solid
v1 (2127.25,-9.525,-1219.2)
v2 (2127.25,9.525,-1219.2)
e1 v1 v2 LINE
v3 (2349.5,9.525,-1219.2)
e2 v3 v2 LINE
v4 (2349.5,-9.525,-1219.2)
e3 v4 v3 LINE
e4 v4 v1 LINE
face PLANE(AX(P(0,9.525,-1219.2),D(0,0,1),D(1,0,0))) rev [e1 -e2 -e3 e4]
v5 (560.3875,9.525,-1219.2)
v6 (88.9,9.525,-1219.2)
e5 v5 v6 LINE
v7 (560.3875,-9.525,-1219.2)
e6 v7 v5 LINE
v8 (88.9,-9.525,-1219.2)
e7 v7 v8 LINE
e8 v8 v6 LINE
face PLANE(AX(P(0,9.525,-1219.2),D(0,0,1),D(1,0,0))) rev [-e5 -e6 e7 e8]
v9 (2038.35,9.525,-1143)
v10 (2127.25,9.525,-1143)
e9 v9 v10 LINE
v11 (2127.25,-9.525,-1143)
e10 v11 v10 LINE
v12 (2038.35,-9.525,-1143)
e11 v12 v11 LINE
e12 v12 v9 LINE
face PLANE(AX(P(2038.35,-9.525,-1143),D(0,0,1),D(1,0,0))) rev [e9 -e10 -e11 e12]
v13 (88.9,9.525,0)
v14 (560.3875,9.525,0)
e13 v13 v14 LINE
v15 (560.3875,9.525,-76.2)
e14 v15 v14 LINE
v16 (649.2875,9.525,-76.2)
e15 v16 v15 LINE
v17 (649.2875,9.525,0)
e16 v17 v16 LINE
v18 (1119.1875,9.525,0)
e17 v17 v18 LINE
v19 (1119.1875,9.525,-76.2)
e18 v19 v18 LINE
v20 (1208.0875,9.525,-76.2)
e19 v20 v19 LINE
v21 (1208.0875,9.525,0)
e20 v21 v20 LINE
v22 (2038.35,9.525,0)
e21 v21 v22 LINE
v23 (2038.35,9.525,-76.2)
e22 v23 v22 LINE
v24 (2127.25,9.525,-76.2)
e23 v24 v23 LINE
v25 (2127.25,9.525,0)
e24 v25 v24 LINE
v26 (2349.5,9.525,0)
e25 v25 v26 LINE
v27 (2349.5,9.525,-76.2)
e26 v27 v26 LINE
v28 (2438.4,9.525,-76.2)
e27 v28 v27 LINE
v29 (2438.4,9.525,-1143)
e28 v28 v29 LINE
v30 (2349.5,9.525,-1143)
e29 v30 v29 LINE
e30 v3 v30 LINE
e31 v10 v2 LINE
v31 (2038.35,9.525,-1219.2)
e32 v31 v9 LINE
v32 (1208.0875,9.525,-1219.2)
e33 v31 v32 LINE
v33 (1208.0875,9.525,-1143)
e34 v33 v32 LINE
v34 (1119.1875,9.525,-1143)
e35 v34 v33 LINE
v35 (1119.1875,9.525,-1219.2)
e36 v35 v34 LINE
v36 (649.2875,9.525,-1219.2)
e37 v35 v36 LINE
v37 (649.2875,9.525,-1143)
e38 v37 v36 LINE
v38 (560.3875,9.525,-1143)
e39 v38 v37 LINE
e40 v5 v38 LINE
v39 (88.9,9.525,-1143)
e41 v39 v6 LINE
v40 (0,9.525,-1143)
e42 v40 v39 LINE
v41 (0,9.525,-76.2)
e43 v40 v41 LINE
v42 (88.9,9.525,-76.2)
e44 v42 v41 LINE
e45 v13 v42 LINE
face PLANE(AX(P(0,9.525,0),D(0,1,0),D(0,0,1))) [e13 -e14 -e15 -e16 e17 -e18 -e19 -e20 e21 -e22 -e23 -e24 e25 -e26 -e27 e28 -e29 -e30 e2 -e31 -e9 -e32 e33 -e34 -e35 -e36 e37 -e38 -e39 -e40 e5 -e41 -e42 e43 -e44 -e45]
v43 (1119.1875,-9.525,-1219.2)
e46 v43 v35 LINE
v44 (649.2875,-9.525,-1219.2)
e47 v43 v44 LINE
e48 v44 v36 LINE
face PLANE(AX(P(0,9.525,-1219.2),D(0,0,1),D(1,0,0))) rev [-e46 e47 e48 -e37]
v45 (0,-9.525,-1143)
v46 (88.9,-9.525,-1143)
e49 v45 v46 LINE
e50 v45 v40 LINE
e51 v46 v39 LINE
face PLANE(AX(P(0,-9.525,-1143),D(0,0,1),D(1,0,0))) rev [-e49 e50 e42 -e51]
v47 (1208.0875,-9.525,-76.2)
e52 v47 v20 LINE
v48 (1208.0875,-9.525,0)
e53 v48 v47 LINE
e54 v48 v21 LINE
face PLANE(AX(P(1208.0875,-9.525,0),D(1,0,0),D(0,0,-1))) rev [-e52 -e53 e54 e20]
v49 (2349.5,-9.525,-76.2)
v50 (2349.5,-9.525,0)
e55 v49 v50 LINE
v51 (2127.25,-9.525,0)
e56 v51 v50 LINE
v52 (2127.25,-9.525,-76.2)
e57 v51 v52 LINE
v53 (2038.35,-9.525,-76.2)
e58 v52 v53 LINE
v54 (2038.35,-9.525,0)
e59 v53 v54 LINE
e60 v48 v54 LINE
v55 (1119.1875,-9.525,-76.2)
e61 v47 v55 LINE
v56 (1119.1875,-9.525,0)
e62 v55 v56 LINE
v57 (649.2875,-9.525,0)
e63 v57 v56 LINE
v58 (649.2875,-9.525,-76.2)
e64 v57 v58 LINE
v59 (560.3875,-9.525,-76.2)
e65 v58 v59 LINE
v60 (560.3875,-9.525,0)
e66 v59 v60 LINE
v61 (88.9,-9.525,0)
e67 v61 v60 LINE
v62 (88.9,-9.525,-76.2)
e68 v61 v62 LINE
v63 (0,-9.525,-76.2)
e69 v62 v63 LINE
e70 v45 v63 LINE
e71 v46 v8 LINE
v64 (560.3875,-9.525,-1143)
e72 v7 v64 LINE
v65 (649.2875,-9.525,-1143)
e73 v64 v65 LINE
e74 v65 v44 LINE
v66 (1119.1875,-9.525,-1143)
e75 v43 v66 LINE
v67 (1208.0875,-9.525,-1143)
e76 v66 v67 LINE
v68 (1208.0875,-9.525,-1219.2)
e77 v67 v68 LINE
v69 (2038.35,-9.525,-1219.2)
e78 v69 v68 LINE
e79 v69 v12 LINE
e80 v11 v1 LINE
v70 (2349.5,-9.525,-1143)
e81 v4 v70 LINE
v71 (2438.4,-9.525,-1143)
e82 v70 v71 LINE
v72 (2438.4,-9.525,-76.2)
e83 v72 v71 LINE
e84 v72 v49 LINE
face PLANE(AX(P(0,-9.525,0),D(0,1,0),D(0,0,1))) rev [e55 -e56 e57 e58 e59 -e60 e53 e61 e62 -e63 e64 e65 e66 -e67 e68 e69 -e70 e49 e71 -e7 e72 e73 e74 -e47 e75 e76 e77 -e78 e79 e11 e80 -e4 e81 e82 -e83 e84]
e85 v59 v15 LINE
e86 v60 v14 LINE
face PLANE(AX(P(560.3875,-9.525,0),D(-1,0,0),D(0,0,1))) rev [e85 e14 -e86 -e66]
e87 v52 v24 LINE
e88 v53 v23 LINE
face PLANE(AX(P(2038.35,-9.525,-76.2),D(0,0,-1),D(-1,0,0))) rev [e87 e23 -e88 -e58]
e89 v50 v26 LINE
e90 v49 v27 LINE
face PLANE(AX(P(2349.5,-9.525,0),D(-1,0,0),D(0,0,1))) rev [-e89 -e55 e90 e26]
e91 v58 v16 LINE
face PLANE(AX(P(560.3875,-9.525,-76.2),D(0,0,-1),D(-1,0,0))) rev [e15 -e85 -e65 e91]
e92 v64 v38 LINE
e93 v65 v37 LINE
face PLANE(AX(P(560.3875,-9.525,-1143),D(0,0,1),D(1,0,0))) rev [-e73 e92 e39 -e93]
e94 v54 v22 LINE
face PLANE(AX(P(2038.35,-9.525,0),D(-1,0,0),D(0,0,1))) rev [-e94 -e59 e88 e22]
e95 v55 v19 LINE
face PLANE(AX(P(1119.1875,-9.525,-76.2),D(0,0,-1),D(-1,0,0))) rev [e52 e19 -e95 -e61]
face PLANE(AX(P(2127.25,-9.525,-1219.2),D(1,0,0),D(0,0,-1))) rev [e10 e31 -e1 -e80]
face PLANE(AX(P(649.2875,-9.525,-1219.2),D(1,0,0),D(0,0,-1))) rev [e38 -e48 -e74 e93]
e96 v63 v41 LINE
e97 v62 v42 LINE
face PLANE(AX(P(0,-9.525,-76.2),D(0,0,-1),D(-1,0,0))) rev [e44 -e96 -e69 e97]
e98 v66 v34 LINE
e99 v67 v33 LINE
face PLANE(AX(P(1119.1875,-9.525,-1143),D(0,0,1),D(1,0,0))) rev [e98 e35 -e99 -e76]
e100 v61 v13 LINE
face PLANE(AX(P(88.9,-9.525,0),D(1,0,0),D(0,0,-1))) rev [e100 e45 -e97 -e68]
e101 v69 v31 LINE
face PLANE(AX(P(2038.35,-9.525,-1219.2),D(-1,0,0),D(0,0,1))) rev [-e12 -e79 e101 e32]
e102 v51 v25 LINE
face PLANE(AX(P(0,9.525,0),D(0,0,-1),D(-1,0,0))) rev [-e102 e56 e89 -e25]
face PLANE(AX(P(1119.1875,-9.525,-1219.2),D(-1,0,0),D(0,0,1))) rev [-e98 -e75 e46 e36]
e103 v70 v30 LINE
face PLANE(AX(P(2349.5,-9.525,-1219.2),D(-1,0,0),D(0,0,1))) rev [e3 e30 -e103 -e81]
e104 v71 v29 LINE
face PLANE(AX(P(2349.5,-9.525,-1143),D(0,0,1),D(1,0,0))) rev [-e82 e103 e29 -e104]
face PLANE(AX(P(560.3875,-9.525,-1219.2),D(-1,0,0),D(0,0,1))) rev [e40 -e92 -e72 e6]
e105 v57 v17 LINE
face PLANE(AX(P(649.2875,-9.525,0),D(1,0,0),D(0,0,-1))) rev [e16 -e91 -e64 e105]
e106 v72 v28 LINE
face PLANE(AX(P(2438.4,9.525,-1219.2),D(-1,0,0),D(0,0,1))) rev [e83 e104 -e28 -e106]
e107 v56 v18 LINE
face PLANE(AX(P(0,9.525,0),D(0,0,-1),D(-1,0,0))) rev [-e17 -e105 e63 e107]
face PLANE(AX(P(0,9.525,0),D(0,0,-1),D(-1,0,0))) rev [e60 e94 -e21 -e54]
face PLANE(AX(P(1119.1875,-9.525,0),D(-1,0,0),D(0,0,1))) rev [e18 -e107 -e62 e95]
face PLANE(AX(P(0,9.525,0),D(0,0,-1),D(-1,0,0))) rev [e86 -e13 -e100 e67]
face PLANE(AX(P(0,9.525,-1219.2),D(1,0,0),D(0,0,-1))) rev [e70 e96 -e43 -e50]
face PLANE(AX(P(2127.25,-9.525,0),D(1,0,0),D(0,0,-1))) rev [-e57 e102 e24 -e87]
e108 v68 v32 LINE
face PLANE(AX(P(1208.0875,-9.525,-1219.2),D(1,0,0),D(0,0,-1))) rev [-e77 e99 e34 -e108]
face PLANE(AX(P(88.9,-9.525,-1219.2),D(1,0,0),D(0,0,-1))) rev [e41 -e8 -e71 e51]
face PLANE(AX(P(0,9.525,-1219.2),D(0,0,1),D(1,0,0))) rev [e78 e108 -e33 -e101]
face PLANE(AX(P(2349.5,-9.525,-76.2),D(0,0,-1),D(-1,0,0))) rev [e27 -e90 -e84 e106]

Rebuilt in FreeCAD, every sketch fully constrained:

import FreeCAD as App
import Part
import Sketcher
from FreeCAD import Vector
Q = App.Units.Quantity

doc = App.newDocument("Part")
body = doc.addObject("PartDesign::Body", "Body")

sketch1 = body.newObject("Sketcher::SketchObject", "Sketch")
sketch1.AttachmentSupport = (doc.getObject("XZ_Plane"), [""])
sketch1.MapMode = "FlatFace"
sketch1.addGeometry([
    Part.LineSegment(Vector(0, -1219, 0), Vector(0, 0, 0)),
    Part.LineSegment(Vector(0, 0, 0), Vector(2438, 0, 0)),
    Part.LineSegment(Vector(2438, 0, 0), Vector(2438, -1219, 0)),
    Part.LineSegment(Vector(2438, -1219, 0), Vector(0, -1219, 0)),
], False)
sketch1.addConstraint([
    Sketcher.Constraint("Coincident", 0, 2, 1, 1),
    Sketcher.Constraint("Coincident", 1, 2, 2, 1),
    Sketcher.Constraint("Coincident", 2, 2, 3, 1),
    Sketcher.Constraint("Coincident", 3, 2, 0, 1),
    Sketcher.Constraint("Vertical", 0),
    Sketcher.Constraint("Horizontal", 1),
    Sketcher.Constraint("Vertical", 2),
    Sketcher.Constraint("Horizontal", 3),
    Sketcher.Constraint("Coincident", 0, 2, -1, 1),
    Sketcher.Constraint("DistanceX", 1, 1, 1, 2, Q("96 in")),
    Sketcher.Constraint("DistanceY", 0, 1, 0, 2, Q("48 in")),
])
pad1 = body.newObject("PartDesign::Pad", "Pad")
pad1.Profile = sketch1
pad1.Length = Q("0.75 in")
pad1.Midplane = True

sketch2 = body.newObject("Sketcher::SketchObject", "Sketch001")
sketch2.AttachmentSupport = (doc.getObject("XZ_Plane"), [""])
sketch2.MapMode = "FlatFace"
sketch2.AttachmentOffset = App.Placement(Vector(0, 0, -0.375 * 25.4), App.Rotation())
sketch2.addGeometry([
    Part.LineSegment(Vector(0, -1219, 0), Vector(0, -1143, 0)),
    Part.LineSegment(Vector(0, -1143, 0), Vector(89, -1143, 0)),
    Part.LineSegment(Vector(89, -1143, 0), Vector(89, -1219, 0)),
    Part.LineSegment(Vector(89, -1219, 0), Vector(0, -1219, 0)),
    Part.LineSegment(Vector(560, -1219, 0), Vector(560, -1143, 0)),
    Part.LineSegment(Vector(560, -1143, 0), Vector(649, -1143, 0)),
    Part.LineSegment(Vector(649, -1143, 0), Vector(649, -1219, 0)),
    Part.LineSegment(Vector(649, -1219, 0), Vector(560, -1219, 0)),
    Part.LineSegment(Vector(1119, -1219, 0), Vector(1119, -1143, 0)),
    Part.LineSegment(Vector(1119, -1143, 0), Vector(1208, -1143, 0)),
    Part.LineSegment(Vector(1208, -1143, 0), Vector(1208, -1219, 0)),
    Part.LineSegment(Vector(1208, -1219, 0), Vector(1119, -1219, 0)),
    Part.LineSegment(Vector(2038, -1219, 0), Vector(2038, -1143, 0)),
    Part.LineSegment(Vector(2038, -1143, 0), Vector(2127, -1143, 0)),
    Part.LineSegment(Vector(2127, -1143, 0), Vector(2127, -1219, 0)),
    Part.LineSegment(Vector(2127, -1219, 0), Vector(2038, -1219, 0)),
    Part.LineSegment(Vector(2350, -1219, 0), Vector(2350, -1143, 0)),
    Part.LineSegment(Vector(2350, -1143, 0), Vector(2438, -1143, 0)),
    Part.LineSegment(Vector(2438, -1143, 0), Vector(2438, -1219, 0)),
    Part.LineSegment(Vector(2438, -1219, 0), Vector(2350, -1219, 0)),
    Part.LineSegment(Vector(1119, -76, 0), Vector(1119, 0, 0)),
    Part.LineSegment(Vector(1119, 0, 0), Vector(1208, 0, 0)),
    Part.LineSegment(Vector(1208, 0, 0), Vector(1208, -76, 0)),
    Part.LineSegment(Vector(1208, -76, 0), Vector(1119, -76, 0)),
    Part.LineSegment(Vector(560, -76, 0), Vector(560, 0, 0)),
    Part.LineSegment(Vector(560, 0, 0), Vector(649, 0, 0)),
    Part.LineSegment(Vector(649, 0, 0), Vector(649, -76, 0)),
    Part.LineSegment(Vector(649, -76, 0), Vector(560, -76, 0)),
    Part.LineSegment(Vector(2350, -76, 0), Vector(2350, 0, 0)),
    Part.LineSegment(Vector(2350, 0, 0), Vector(2438, 0, 0)),
    Part.LineSegment(Vector(2438, 0, 0), Vector(2438, -76, 0)),
    Part.LineSegment(Vector(2438, -76, 0), Vector(2350, -76, 0)),
    Part.LineSegment(Vector(2038, -76, 0), Vector(2038, 0, 0)),
    Part.LineSegment(Vector(2038, 0, 0), Vector(2127, 0, 0)),
    Part.LineSegment(Vector(2127, 0, 0), Vector(2127, -76, 0)),
    Part.LineSegment(Vector(2127, -76, 0), Vector(2038, -76, 0)),
    Part.LineSegment(Vector(0, -76, 0), Vector(0, 0, 0)),
    Part.LineSegment(Vector(0, 0, 0), Vector(89, 0, 0)),
    Part.LineSegment(Vector(89, 0, 0), Vector(89, -76, 0)),
    Part.LineSegment(Vector(89, -76, 0), Vector(0, -76, 0)),
], False)
sketch2.addConstraint([
    Sketcher.Constraint("Coincident", 0, 2, 1, 1),
    Sketcher.Constraint("Coincident", 1, 2, 2, 1),
    Sketcher.Constraint("Coincident", 2, 2, 3, 1),
    Sketcher.Constraint("Coincident", 3, 2, 0, 1),
    Sketcher.Constraint("Coincident", 4, 2, 5, 1),
    Sketcher.Constraint("Coincident", 5, 2, 6, 1),
    Sketcher.Constraint("Coincident", 6, 2, 7, 1),
    Sketcher.Constraint("Coincident", 7, 2, 4, 1),
    Sketcher.Constraint("Coincident", 8, 2, 9, 1),
    Sketcher.Constraint("Coincident", 9, 2, 10, 1),
    Sketcher.Constraint("Coincident", 10, 2, 11, 1),
    Sketcher.Constraint("Coincident", 11, 2, 8, 1),
    Sketcher.Constraint("Coincident", 12, 2, 13, 1),
    Sketcher.Constraint("Coincident", 13, 2, 14, 1),
    Sketcher.Constraint("Coincident", 14, 2, 15, 1),
    Sketcher.Constraint("Coincident", 15, 2, 12, 1),
    Sketcher.Constraint("Coincident", 16, 2, 17, 1),
    Sketcher.Constraint("Coincident", 17, 2, 18, 1),
    Sketcher.Constraint("Coincident", 18, 2, 19, 1),
    Sketcher.Constraint("Coincident", 19, 2, 16, 1),
    Sketcher.Constraint("Coincident", 20, 2, 21, 1),
    Sketcher.Constraint("Coincident", 21, 2, 22, 1),
    Sketcher.Constraint("Coincident", 22, 2, 23, 1),
    Sketcher.Constraint("Coincident", 23, 2, 20, 1),
    Sketcher.Constraint("Coincident", 24, 2, 25, 1),
    Sketcher.Constraint("Coincident", 25, 2, 26, 1),
    Sketcher.Constraint("Coincident", 26, 2, 27, 1),
    Sketcher.Constraint("Coincident", 27, 2, 24, 1),
    Sketcher.Constraint("Coincident", 28, 2, 29, 1),
    Sketcher.Constraint("Coincident", 29, 2, 30, 1),
    Sketcher.Constraint("Coincident", 30, 2, 31, 1),
    Sketcher.Constraint("Coincident", 31, 2, 28, 1),
    Sketcher.Constraint("Coincident", 32, 2, 33, 1),
    Sketcher.Constraint("Coincident", 33, 2, 34, 1),
    Sketcher.Constraint("Coincident", 34, 2, 35, 1),
    Sketcher.Constraint("Coincident", 35, 2, 32, 1),
    Sketcher.Constraint("Coincident", 36, 2, 37, 1),
    Sketcher.Constraint("Coincident", 37, 2, 38, 1),
    Sketcher.Constraint("Coincident", 38, 2, 39, 1),
    Sketcher.Constraint("Coincident", 39, 2, 36, 1),
    Sketcher.Constraint("Vertical", 0),
    Sketcher.Constraint("Horizontal", 1),
    Sketcher.Constraint("Vertical", 2),
    Sketcher.Constraint("Horizontal", 3),
    Sketcher.Constraint("Vertical", 4),
    Sketcher.Constraint("Horizontal", 5),
    Sketcher.Constraint("Vertical", 6),
    Sketcher.Constraint("Horizontal", 7),
    Sketcher.Constraint("Vertical", 8),
    Sketcher.Constraint("Horizontal", 9),
    Sketcher.Constraint("Vertical", 10),
    Sketcher.Constraint("Horizontal", 11),
    Sketcher.Constraint("Vertical", 12),
    Sketcher.Constraint("Horizontal", 13),
    Sketcher.Constraint("Vertical", 14),
    Sketcher.Constraint("Horizontal", 15),
    Sketcher.Constraint("Vertical", 16),
    Sketcher.Constraint("Horizontal", 17),
    Sketcher.Constraint("Vertical", 18),
    Sketcher.Constraint("Horizontal", 19),
    Sketcher.Constraint("Vertical", 20),
    Sketcher.Constraint("Horizontal", 21),
    Sketcher.Constraint("Vertical", 22),
    Sketcher.Constraint("Horizontal", 23),
    Sketcher.Constraint("Vertical", 24),
    Sketcher.Constraint("Horizontal", 25),
    Sketcher.Constraint("Vertical", 26),
    Sketcher.Constraint("Horizontal", 27),
    Sketcher.Constraint("Vertical", 28),
    Sketcher.Constraint("Horizontal", 29),
    Sketcher.Constraint("Vertical", 30),
    Sketcher.Constraint("Horizontal", 31),
    Sketcher.Constraint("Vertical", 32),
    Sketcher.Constraint("Horizontal", 33),
    Sketcher.Constraint("Vertical", 34),
    Sketcher.Constraint("Horizontal", 35),
    Sketcher.Constraint("Vertical", 36),
    Sketcher.Constraint("Horizontal", 37),
    Sketcher.Constraint("Vertical", 38),
    Sketcher.Constraint("Horizontal", 39),
    Sketcher.Constraint("Coincident", 36, 2, -1, 1),
    Sketcher.Constraint("PointOnObject", 0, 2, -2),
    Sketcher.Constraint("PointOnObject", 20, 2, -1),
    Sketcher.Constraint("PointOnObject", 24, 2, -1),
    Sketcher.Constraint("PointOnObject", 28, 2, -1),
    Sketcher.Constraint("PointOnObject", 32, 2, -1),
    Sketcher.Constraint("Horizontal", 1, 2, 4, 2),
    Sketcher.Constraint("Horizontal", 3, 2, 6, 2),
    Sketcher.Constraint("Horizontal", 5, 2, 8, 2),
    Sketcher.Constraint("Horizontal", 7, 2, 10, 2),
    Sketcher.Constraint("Horizontal", 9, 2, 12, 2),
    Sketcher.Constraint("Horizontal", 11, 2, 14, 2),
    Sketcher.Constraint("Horizontal", 13, 2, 16, 2),
    Sketcher.Constraint("Horizontal", 15, 2, 18, 2),
    Sketcher.Constraint("Horizontal", 23, 2, 26, 2),
    Sketcher.Constraint("Horizontal", 27, 2, 30, 2),
    Sketcher.Constraint("Horizontal", 31, 2, 34, 2),
    Sketcher.Constraint("Horizontal", 35, 2, 38, 2),
    Sketcher.Constraint("Vertical", 11, 2, 20, 2),
    Sketcher.Constraint("Vertical", 10, 2, 21, 2),
    Sketcher.Constraint("Vertical", 7, 2, 24, 2),
    Sketcher.Constraint("Vertical", 6, 2, 25, 2),
    Sketcher.Constraint("Vertical", 19, 2, 28, 2),
    Sketcher.Constraint("Vertical", 18, 2, 29, 2),
    Sketcher.Constraint("Vertical", 15, 2, 32, 2),
    Sketcher.Constraint("Vertical", 14, 2, 33, 2),
    Sketcher.Constraint("Vertical", 2, 2, 37, 2),
    Sketcher.Constraint("Equal", 3, 5),
    Sketcher.Constraint("Equal", 7, 9),
    Sketcher.Constraint("Equal", 11, 13),
    Sketcher.Constraint("Equal", 15, 17),
    Sketcher.Constraint("Equal", 18, 20),
    Sketcher.Constraint("DistanceY", 0, 1, 0, 2, Q("3 in")),
    Sketcher.Constraint("DistanceX", 1, 1, 1, 2, Q("3.5 in")),
    Sketcher.Constraint("DistanceY", 0, 2, -1, 1, Q("45 in")),
    Sketcher.Constraint("DistanceX", -1, 1, 17, 2, Q("96 in")),
    Sketcher.Constraint("DistanceX", 4, 2, 8, 2, Q("22 in")),
    Sketcher.Constraint("DistanceX", -1, 1, 12, 2, Q("80.25 in")),
    Sketcher.Constraint("DistanceX", -1, 1, 4, 2, Q("22.0625 in")),
])
pocket1 = body.newObject("PartDesign::Pocket", "Pocket")
pocket1.Profile = sketch2
pocket1.Type = "ThroughAll"
pocket1.Reversed = True

doc.recompute()
